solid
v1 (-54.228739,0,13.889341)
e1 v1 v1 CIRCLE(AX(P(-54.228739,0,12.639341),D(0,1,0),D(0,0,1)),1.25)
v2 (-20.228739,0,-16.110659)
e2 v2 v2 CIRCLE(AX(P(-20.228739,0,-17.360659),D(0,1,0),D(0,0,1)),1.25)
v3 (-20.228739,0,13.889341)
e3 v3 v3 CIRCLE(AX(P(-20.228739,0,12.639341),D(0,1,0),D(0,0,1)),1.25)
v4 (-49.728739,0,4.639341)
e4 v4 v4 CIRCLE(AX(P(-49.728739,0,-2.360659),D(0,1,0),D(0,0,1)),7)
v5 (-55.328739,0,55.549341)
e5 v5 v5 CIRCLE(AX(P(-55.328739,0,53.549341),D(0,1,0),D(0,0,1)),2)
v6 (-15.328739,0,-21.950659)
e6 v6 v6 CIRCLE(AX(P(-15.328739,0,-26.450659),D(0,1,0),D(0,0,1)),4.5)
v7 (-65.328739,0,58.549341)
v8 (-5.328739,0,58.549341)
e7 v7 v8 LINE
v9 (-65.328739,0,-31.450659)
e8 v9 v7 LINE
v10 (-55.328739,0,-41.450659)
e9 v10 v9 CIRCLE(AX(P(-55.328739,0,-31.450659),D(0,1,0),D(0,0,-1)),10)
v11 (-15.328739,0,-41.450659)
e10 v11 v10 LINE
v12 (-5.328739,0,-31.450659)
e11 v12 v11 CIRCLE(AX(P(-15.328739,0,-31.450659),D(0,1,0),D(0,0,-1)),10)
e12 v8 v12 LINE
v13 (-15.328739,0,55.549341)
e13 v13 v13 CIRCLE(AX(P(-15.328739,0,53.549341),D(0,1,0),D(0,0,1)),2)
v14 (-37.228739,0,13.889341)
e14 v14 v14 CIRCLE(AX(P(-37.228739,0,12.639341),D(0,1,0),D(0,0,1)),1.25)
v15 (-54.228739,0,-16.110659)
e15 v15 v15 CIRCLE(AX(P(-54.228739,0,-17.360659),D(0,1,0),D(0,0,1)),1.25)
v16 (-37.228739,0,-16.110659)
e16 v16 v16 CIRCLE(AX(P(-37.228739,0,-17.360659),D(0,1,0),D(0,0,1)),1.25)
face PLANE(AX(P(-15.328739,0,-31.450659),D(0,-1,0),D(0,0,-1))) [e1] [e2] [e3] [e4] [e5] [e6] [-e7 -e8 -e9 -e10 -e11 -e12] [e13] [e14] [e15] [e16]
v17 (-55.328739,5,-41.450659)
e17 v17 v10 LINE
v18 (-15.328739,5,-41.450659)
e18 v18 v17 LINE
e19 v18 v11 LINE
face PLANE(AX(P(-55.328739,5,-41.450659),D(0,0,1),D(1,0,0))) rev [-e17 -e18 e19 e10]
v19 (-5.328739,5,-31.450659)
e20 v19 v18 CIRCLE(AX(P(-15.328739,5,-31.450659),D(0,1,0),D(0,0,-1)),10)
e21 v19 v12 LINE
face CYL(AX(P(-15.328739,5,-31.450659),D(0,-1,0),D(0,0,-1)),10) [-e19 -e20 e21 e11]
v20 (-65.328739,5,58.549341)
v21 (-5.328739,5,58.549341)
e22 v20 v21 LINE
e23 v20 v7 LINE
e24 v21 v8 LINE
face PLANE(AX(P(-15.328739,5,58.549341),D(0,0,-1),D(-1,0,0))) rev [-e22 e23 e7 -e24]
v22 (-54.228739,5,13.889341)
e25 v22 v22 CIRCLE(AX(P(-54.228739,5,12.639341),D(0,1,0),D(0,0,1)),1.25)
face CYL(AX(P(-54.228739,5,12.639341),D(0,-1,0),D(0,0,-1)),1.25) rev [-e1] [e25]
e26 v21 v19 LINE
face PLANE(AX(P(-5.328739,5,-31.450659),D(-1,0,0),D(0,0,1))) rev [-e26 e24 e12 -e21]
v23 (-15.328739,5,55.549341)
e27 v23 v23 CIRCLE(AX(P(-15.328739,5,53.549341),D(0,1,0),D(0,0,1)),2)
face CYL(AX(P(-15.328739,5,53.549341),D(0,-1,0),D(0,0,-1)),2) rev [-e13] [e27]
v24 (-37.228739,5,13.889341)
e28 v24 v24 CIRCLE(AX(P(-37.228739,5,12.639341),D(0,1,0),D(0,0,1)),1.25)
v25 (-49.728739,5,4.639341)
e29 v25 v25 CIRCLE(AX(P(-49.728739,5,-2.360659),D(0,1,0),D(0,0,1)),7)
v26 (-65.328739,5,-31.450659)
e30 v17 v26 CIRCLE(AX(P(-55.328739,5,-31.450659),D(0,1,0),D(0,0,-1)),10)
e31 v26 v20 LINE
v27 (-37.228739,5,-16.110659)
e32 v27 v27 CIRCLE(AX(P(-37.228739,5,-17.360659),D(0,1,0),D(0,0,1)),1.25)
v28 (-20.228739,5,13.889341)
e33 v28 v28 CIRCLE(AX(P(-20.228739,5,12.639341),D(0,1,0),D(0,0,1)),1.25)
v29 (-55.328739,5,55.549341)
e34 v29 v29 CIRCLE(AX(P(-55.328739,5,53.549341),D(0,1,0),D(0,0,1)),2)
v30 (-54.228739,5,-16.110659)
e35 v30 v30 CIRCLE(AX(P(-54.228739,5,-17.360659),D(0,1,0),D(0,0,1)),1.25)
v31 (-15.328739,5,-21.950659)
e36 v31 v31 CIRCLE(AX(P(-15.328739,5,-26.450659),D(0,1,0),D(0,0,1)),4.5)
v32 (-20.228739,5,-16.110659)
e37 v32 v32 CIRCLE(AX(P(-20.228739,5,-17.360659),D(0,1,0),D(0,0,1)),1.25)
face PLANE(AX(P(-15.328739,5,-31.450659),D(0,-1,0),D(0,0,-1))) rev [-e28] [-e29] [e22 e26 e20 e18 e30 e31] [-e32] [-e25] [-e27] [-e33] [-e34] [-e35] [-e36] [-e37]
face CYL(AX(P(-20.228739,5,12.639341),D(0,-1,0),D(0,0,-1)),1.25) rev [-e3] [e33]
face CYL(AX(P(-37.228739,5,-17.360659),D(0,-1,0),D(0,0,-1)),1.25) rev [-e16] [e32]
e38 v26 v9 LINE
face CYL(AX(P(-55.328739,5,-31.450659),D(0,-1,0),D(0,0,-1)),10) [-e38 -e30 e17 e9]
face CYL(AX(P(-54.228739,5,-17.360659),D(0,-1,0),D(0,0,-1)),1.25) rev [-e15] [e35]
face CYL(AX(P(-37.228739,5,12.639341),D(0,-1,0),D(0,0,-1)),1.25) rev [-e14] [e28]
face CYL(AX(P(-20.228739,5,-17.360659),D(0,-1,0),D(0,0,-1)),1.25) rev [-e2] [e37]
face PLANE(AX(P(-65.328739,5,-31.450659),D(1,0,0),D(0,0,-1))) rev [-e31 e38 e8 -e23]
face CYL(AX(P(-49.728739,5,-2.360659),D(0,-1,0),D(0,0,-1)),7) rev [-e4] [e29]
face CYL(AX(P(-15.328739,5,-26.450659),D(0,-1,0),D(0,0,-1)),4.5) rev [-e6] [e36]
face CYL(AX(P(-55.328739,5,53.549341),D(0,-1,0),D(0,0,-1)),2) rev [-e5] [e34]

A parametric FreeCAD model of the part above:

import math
import FreeCAD as App
import Part
import Sketcher
from FreeCAD import Vector

doc = App.newDocument("Part")
body = doc.addObject("PartDesign::Body", "Body")

sketch1 = doc.addObject("Sketcher::SketchObject", "Sketch")
body.addObject(sketch1)
sketch1.AttachmentSupport = (doc.XZ_Plane, [""])
sketch1.MapMode = "FlatFace"
sketch1.addGeometry([
    Part.LineSegment(Vector(-65.328739, -31.450659, 0), Vector(-65.328739, 58.549341, 0)),
    Part.LineSegment(Vector(-65.328739, 58.549341, 0), Vector(-5.328739, 58.549341, 0)),
    Part.LineSegment(Vector(-5.328739, 58.549341, 0), Vector(-5.328739, -31.450659, 0)),
    Part.ArcOfCircle(Part.Circle(Vector(-15.328739, -31.450659, 0), Vector(0, 0, 1), 10), math.radians(-90), math.radians(0)),
    Part.LineSegment(Vector(-15.328739, -41.450659, 0), Vector(-55.328739, -41.450659, 0)),
    Part.ArcOfCircle(Part.Circle(Vector(-55.328739, -31.450659, 0), Vector(0, 0, 1), 10), math.radians(-180), math.radians(-90)),
    Part.Circle(Vector(-55.328739, 53.549341, 0), Vector(0, 0, 1), 2),
    Part.Circle(Vector(-54.228739, 12.639341, 0), Vector(0, 0, 1), 1.25),
    Part.Circle(Vector(-37.228739, 12.639341, 0), Vector(0, 0, 1), 1.25),
    Part.Circle(Vector(-15.328739, 53.549341, 0), Vector(0, 0, 1), 2),
    Part.Circle(Vector(-20.228739, 12.639341, 0), Vector(0, 0, 1), 1.25),
    Part.Circle(Vector(-49.728739, -2.360659, 0), Vector(0, 0, 1), 7),
    Part.Circle(Vector(-54.228739, -17.360659, 0), Vector(0, 0, 1), 1.25),
    Part.Circle(Vector(-37.228739, -17.360659, 0), Vector(0, 0, 1), 1.25),
    Part.Circle(Vector(-20.228739, -17.360659, 0), Vector(0, 0, 1), 1.25),
    Part.Circle(Vector(-15.328739, -26.450659, 0), Vector(0, 0, 1), 4.5),
], False)
sketch1.addConstraint([
    Sketcher.Constraint("Coincident", 0, 2, 1, 1),
    Sketcher.Constraint("Coincident", 1, 2, 2, 1),
    Sketcher.Constraint("Tangent", 2, 2, 3, 2),
    Sketcher.Constraint("Tangent", 3, 1, 4, 1),
    Sketcher.Constraint("Tangent", 4, 2, 5, 2),
    Sketcher.Constraint("Tangent", 5, 1, 0, 1),
    Sketcher.Constraint("Vertical", 0),
    Sketcher.Constraint("Horizontal", 1),
    Sketcher.Constraint("Vertical", 2),
    Sketcher.Constraint("Horizontal", 4),
    Sketcher.Constraint("Equal", 3, 5),
    Sketcher.Constraint("Equal", 7, 8),
    Sketcher.Constraint("Equal", 6, 9),
    Sketcher.Constraint("Equal", 8, 10),
    Sketcher.Constraint("Equal", 10, 12),
    Sketcher.Constraint("Equal", 12, 13),
    Sketcher.Constraint("Equal", 13, 14),
    Sketcher.Constraint("Horizontal", 7, 3, 8, 3),
    Sketcher.Constraint("Horizontal", 6, 3, 9, 3),
    Sketcher.Constraint("Horizontal", 8, 3, 10, 3),
    Sketcher.Constraint("Horizontal", 12, 3, 13, 3),
    Sketcher.Constraint("Horizontal", 13, 3, 14, 3),
    Sketcher.Constraint("Vertical", 5, 3, 6, 3),
    Sketcher.Constraint("Vertical", 3, 3, 9, 3),
    Sketcher.Constraint("Vertical", 7, 3, 12, 3),
    Sketcher.Constraint("Vertical", 8, 3, 13, 3),
    Sketcher.Constraint("Vertical", 10, 3, 14, 3),
    Sketcher.Constraint("Vertical", 9, 3, 15, 3),
    Sketcher.Constraint("Diameter", 6, 4.0),
    Sketcher.Constraint("Diameter", 11, 14.0),
    Sketcher.Constraint("Diameter", 15, 9.0),
    Sketcher.Constraint("Radius", 3, 10.0),
    Sketcher.Constraint("Diameter", 7, 2.5),
    Sketcher.Constraint("DistanceX", 1, 1, 1, 2, 60.0),
    Sketcher.Constraint("DistanceY", 0, 1, 0, 2, 90.0),
    Sketcher.Constraint("DistanceY", 5, 3, 6, 3, 85.0),
    Sketcher.Constraint("DistanceX", 7, 3, 8, 3, 17.0),
    Sketcher.Constraint("DistanceX", 8, 3, 10, 3, 17.0),
    Sketcher.Constraint("DistanceY", 11, 3, 7, 3, 15.0),
    Sketcher.Constraint("DistanceY", 12, 3, 11, 3, 15.0),
    Sketcher.Constraint("DistanceY", 3, 3, 15, 3, 5.0),
    Sketcher.Constraint("DistanceX", 6, 3, 7, 3, 1.1),
    Sketcher.Constraint("DistanceX", 7, 3, 11, 3, 4.5),
    Sketcher.Constraint("DistanceY", 7, 3, 6, 3, 40.91),
    Sketcher.Constraint("DistanceX", 3, 3, -1, 1, 15.328739),
    Sketcher.Constraint("DistanceY", 3, 3, -1, 1, 31.450659),
])
pad1 = doc.addObject("PartDesign::Pad", "Pad")
body.addObject(pad1)
pad1.Profile = sketch1
pad1.Length = 5
pad1.Reversed = True

doc.recompute()
